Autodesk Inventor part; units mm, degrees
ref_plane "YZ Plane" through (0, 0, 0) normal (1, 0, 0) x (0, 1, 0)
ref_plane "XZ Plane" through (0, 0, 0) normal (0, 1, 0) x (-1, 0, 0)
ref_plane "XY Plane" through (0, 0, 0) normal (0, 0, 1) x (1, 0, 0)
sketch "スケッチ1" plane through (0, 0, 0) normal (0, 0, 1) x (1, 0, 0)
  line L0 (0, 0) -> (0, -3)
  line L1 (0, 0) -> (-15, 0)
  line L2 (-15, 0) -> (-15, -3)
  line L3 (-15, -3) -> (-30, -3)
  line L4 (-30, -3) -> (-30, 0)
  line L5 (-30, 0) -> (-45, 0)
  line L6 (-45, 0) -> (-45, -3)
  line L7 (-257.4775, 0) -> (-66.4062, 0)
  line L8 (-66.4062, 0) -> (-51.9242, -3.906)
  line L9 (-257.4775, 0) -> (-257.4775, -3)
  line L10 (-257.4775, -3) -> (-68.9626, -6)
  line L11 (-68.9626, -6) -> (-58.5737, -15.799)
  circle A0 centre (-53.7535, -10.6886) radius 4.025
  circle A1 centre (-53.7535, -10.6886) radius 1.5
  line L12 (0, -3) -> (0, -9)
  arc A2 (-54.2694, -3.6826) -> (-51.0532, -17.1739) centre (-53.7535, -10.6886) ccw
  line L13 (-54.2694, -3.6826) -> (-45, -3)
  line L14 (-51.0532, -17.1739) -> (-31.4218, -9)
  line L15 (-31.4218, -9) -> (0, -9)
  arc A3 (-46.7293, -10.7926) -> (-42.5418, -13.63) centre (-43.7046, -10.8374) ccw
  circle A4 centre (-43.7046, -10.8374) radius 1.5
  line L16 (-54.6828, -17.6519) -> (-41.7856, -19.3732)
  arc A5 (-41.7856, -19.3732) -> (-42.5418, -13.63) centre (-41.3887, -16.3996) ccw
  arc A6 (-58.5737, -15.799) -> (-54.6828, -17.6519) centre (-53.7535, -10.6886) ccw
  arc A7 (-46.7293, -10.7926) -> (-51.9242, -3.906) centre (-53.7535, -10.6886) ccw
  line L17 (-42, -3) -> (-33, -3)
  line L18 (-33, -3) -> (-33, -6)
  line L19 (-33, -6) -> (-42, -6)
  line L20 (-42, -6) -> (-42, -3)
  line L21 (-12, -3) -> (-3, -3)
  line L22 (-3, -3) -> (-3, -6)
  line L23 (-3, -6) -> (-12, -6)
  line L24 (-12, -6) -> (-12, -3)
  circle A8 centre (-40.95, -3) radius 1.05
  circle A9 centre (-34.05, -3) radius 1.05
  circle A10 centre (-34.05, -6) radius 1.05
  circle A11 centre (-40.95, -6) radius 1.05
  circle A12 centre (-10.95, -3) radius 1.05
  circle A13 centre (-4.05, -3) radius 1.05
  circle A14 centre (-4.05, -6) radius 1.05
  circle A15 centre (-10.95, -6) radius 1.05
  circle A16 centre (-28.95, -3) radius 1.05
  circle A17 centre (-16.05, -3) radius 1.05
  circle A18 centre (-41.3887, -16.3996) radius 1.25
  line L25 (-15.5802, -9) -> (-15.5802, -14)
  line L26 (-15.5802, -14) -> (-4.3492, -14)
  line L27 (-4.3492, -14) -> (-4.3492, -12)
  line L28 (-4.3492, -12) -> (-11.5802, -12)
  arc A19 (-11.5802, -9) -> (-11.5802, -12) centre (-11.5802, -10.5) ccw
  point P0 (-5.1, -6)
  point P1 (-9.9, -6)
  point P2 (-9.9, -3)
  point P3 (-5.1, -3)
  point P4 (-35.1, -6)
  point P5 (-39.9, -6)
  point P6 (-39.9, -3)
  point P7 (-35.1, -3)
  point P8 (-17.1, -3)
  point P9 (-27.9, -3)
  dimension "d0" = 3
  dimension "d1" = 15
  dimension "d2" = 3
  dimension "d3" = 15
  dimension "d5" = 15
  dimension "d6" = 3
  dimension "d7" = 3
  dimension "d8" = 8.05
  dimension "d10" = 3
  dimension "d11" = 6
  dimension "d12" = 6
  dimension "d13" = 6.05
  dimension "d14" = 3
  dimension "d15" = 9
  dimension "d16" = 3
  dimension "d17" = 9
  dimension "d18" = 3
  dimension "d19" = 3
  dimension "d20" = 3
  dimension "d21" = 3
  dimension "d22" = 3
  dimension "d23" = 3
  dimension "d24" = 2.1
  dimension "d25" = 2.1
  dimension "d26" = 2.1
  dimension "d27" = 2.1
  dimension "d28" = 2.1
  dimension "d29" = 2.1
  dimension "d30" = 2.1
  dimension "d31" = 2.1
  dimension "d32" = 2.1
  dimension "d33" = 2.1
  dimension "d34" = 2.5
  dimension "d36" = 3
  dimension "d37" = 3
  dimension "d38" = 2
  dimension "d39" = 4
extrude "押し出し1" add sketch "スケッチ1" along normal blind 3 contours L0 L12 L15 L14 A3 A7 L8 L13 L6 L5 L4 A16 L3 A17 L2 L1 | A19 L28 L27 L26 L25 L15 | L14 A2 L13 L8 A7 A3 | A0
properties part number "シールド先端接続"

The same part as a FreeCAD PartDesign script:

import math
import FreeCAD as App
import Part
import Sketcher

V = App.Vector
Q = App.Units.Quantity

doc = App.newDocument("Part")
body = doc.addObject("PartDesign::Body", "Body")

# Sketch on XY plane
sketch1 = body.newObject("Sketcher::SketchObject", "Sketch")
sketch1.AttachmentSupport = (doc.getObject("XY_Plane"), [""])
sketch1.MapMode = "FlatFace"
sketch1.addGeometry([
    Part.LineSegment(V(0, 0, 0), V(-15, 0, 0)),  # 0
    Part.LineSegment(V(-15, 0, 0), V(-15, -3, 0)),  # 1
    Part.ArcOfCircle(Part.Circle(V(-16.05, -3, 0), V(0, 0, 1), 1.05), math.radians(180), math.radians(360)),  # 2
    Part.LineSegment(V(-17.1, -3, 0), V(-27.9, -3, 0)),  # 3
    Part.ArcOfCircle(Part.Circle(V(-28.95, -3, 0), V(0, 0, 1), 1.05), math.radians(180), math.radians(360)),  # 4
    Part.LineSegment(V(-30, -3, 0), V(-30, 0, 0)),  # 5
    Part.LineSegment(V(-30, 0, 0), V(-45, 0, 0)),  # 6
    Part.LineSegment(V(-45, 0, 0), V(-45, -3, 0)),  # 7
    Part.LineSegment(V(-45, -3, 0), V(-54.2694, -3.6826, 0)),  # 8
    Part.ArcOfCircle(Part.Circle(V(-53.7535, -10.6886, 0), V(0, 0, 1), 7.024992), math.radians(94.211481), math.radians(292.605498)),  # 9
    Part.LineSegment(V(-51.0532, -17.1739, 0), V(-31.4218, -9, 0)),  # 10
    Part.LineSegment(V(-31.4218, -9, 0), V(-15.5802, -9, 0)),  # 11
    Part.LineSegment(V(-15.5802, -9, 0), V(-15.5802, -14, 0)),  # 12
    Part.LineSegment(V(-15.5802, -14, 0), V(-4.3492, -14, 0)),  # 13
    Part.LineSegment(V(-4.3492, -14, 0), V(-4.3492, -12, 0)),  # 14
    Part.LineSegment(V(-4.3492, -12, 0), V(-11.5802, -12, 0)),  # 15
    Part.ArcOfCircle(Part.Circle(V(-11.5802, -10.5, 0), V(0, 0, 1), 1.5), math.radians(90), math.radians(270)),  # 16
    Part.LineSegment(V(-11.5802, -9, 0), V(0, -9, 0)),  # 17
    Part.LineSegment(V(0, -9, 0), V(0, 0, 0)),  # 18
    Part.Circle(V(-43.7046, -10.8374, 0), V(0, 0, 1), 1.5),  # 19
    Part.LineSegment(V(-42, -6, 0), V(-42, -3, 0)),  # 20
    Part.ArcOfCircle(Part.Circle(V(-40.95, -3, 0), V(0, 0, 1), 1.05), math.radians(0), math.radians(180)),  # 21
    Part.LineSegment(V(-39.9, -3, 0), V(-35.1, -3, 0)),  # 22
    Part.ArcOfCircle(Part.Circle(V(-34.05, -3, 0), V(0, 0, 1), 1.05), math.radians(0), math.radians(180)),  # 23
    Part.LineSegment(V(-33, -3, 0), V(-33, -6, 0)),  # 24
    Part.ArcOfCircle(Part.Circle(V(-34.05, -6, 0), V(0, 0, 1), 1.05), math.radians(180), math.radians(360)),  # 25
    Part.LineSegment(V(-35.1, -6, 0), V(-39.9, -6, 0)),  # 26
    Part.ArcOfCircle(Part.Circle(V(-40.95, -6, 0), V(0, 0, 1), 1.05), math.radians(180), math.radians(360)),  # 27
    Part.LineSegment(V(-12, -6, 0), V(-12, -3, 0)),  # 28
    Part.ArcOfCircle(Part.Circle(V(-10.95, -3, 0), V(0, 0, 1), 1.05), math.radians(0), math.radians(180)),  # 29
    Part.LineSegment(V(-9.9, -3, 0), V(-5.1, -3, 0)),  # 30
    Part.ArcOfCircle(Part.Circle(V(-4.05, -3, 0), V(0, 0, 1), 1.05), math.radians(0), math.radians(180)),  # 31
    Part.LineSegment(V(-3, -3, 0), V(-3, -6, 0)),  # 32
    Part.ArcOfCircle(Part.Circle(V(-4.05, -6, 0), V(0, 0, 1), 1.05), math.radians(180), math.radians(360)),  # 33
    Part.LineSegment(V(-5.1, -6, 0), V(-9.9, -6, 0)),  # 34
    Part.ArcOfCircle(Part.Circle(V(-10.95, -6, 0), V(0, 0, 1), 1.05), math.radians(180), math.radians(360)),  # 35
    Part.Circle(V(-53.7535, -10.6886, 0), V(0, 0, 1), 1.5),  # 36
], False)
sketch1.addConstraint([
    Sketcher.Constraint("Coincident", 0, 2, 1, 1),
    Sketcher.Constraint("Tangent", 1, 2, 2, 2),
    Sketcher.Constraint("Coincident", 2, 1, 3, 1),
    Sketcher.Constraint("Coincident", 3, 2, 4, 2),
    Sketcher.Constraint("Tangent", 4, 1, 5, 1),
    Sketcher.Constraint("Coincident", 5, 2, 6, 1),
    Sketcher.Constraint("Coincident", 6, 2, 7, 1),
    Sketcher.Constraint("Coincident", 7, 2, 8, 1),
    Sketcher.Constraint("Tangent", 8, 2, 9, 1),
    Sketcher.Constraint("Tangent", 9, 2, 10, 1),
    Sketcher.Constraint("Coincident", 10, 2, 11, 1),
    Sketcher.Constraint("Coincident", 11, 2, 12, 1),
    Sketcher.Constraint("Coincident", 12, 2, 13, 1),
    Sketcher.Constraint("Coincident", 13, 2, 14, 1),
    Sketcher.Constraint("Coincident", 14, 2, 15, 1),
    Sketcher.Constraint("Tangent", 15, 2, 16, 2),
    Sketcher.Constraint("Tangent", 16, 1, 17, 1),
    Sketcher.Constraint("Coincident", 17, 2, 18, 1),
    Sketcher.Constraint("Coincident", 18, 2, 0, 1),
    Sketcher.Constraint("Tangent", 20, 2, 21, 2),
    Sketcher.Constraint("Coincident", 21, 1, 22, 1),
    Sketcher.Constraint("Coincident", 22, 2, 23, 2),
    Sketcher.Constraint("Tangent", 23, 1, 24, 1),
    Sketcher.Constraint("Tangent", 24, 2, 25, 2),
    Sketcher.Constraint("Coincident", 25, 1, 26, 1),
    Sketcher.Constraint("Coincident", 26, 2, 27, 2),
    Sketcher.Constraint("Tangent", 27, 1, 20, 1),
    Sketcher.Constraint("Tangent", 28, 2, 29, 2),
    Sketcher.Constraint("Coincident", 29, 1, 30, 1),
    Sketcher.Constraint("Coincident", 30, 2, 31, 2),
    Sketcher.Constraint("Tangent", 31, 1, 32, 1),
    Sketcher.Constraint("Tangent", 32, 2, 33, 2),
    Sketcher.Constraint("Coincident", 33, 1, 34, 1),
    Sketcher.Constraint("Coincident", 34, 2, 35, 2),
    Sketcher.Constraint("Tangent", 35, 1, 28, 1),
    Sketcher.Constraint("Horizontal", 0),
    Sketcher.Constraint("Vertical", 1),
    Sketcher.Constraint("Horizontal", 3),
    Sketcher.Constraint("Vertical", 5),
    Sketcher.Constraint("Horizontal", 6),
    Sketcher.Constraint("Vertical", 7),
    Sketcher.Constraint("Horizontal", 11),
    Sketcher.Constraint("Vertical", 12),
    Sketcher.Constraint("Horizontal", 13),
    Sketcher.Constraint("Vertical", 14),
    Sketcher.Constraint("Horizontal", 15),
    Sketcher.Constraint("Horizontal", 17),
    Sketcher.Constraint("Vertical", 18),
    Sketcher.Constraint("Vertical", 20),
    Sketcher.Constraint("Horizontal", 22),
    Sketcher.Constraint("Vertical", 24),
    Sketcher.Constraint("Horizontal", 26),
    Sketcher.Constraint("Vertical", 28),
    Sketcher.Constraint("Horizontal", 30),
    Sketcher.Constraint("Vertical", 32),
    Sketcher.Constraint("Horizontal", 34),
    Sketcher.Constraint("Coincident", 18, 2, -1, 1),
    Sketcher.Constraint("Coincident", 36, 3, 9, 3),
    Sketcher.Constraint("Equal", 2, 4),
    Sketcher.Constraint("Equal", 16, 19),
    Sketcher.Constraint("Equal", 4, 21),
    Sketcher.Constraint("Equal", 21, 23),
    Sketcher.Constraint("Equal", 23, 25),
    Sketcher.Constraint("Equal", 25, 27),
    Sketcher.Constraint("Equal", 27, 29),
    Sketcher.Constraint("Equal", 29, 31),
    Sketcher.Constraint("Equal", 31, 33),
    Sketcher.Constraint("Equal", 33, 35),
    Sketcher.Constraint("Equal", 19, 36),
    Sketcher.Constraint("PointOnObject", 5, 2, -1),
    Sketcher.Constraint("Horizontal", 2, 3, 4, 3),
    Sketcher.Constraint("Horizontal", 4, 3, 21, 3),
    Sketcher.Constraint("Horizontal", 21, 3, 23, 3),
    Sketcher.Constraint("Horizontal", 25, 3, 27, 3),
    Sketcher.Constraint("Horizontal", 23, 3, 29, 3),
    Sketcher.Constraint("Horizontal", 29, 3, 31, 3),
    Sketcher.Constraint("Horizontal", 27, 3, 33, 3),
    Sketcher.Constraint("Horizontal", 33, 3, 35, 3),
    Sketcher.Constraint("Horizontal", 1, 2, 2, 1),
    Sketcher.Constraint("Horizontal", 4, 1, 7, 2),
    Sketcher.Constraint("Horizontal", 11, 2, 16, 1),
    Sketcher.Constraint("Horizontal", 20, 2, 21, 1),
    Sketcher.Constraint("Horizontal", 24, 2, 25, 1),
    Sketcher.Constraint("Horizontal", 28, 2, 29, 1),
    Sketcher.Constraint("Horizontal", 32, 2, 33, 1),
    Sketcher.Constraint("Equal", 0, 6),
    Sketcher.Constraint("Equal", 26, 30),
    Sketcher.Constraint("Equal", 7, 20),
    Sketcher.Constraint("Diameter", 19, Q("3 mm")),
    Sketcher.Constraint("DistanceX", 0, 2, 0, 1, Q("15 mm")),
    Sketcher.Constraint("DistanceY", 1, 2, 1, 1, Q("3 mm")),
    Sketcher.Constraint("DistanceY", 14, 1, 14, 2, Q("2 mm")),
    Sketcher.Constraint("DistanceY", 18, 1, 18, 2, Q("9 mm")),
    Sketcher.Constraint("Radius", 2, Q("1.05 mm")),
    Sketcher.Constraint("DistanceX", 31, 1, -1, 1, Q("3 mm")),
    Sketcher.Constraint("DistanceX", 11, 2, 16, 3, Q("4 mm")),
    Sketcher.Constraint("DistanceX", 7, 2, 20, 2, Q("3 mm")),
    Sketcher.Constraint("DistanceX", 23, 1, 4, 1, Q("3 mm")),
    Sketcher.Constraint("DistanceX", 3, 2, 3, 1, Q("10.8 mm")),
    Sketcher.Constraint("Radius", 9, Q("7.025 mm")),
    Sketcher.Constraint("DistanceX", 13, 1, 13, 2, Q("11.231 mm")),
    Sketcher.Constraint("Distance", 10, Q("21.265 mm")),
    Sketcher.Constraint("DistanceX", 11, 1, 11, 2, Q("15.8416 mm")),
    Sketcher.Constraint("DistanceX", 17, 1, 17, 2, Q("11.5802 mm")),
    Sketcher.Constraint("DistanceY", 9, 2, -1, 1, Q("17.174 mm")),
    Sketcher.Constraint("DistanceX", 9, 3, 19, 3, Q("10.049 mm")),
    Sketcher.Constraint("DistanceY", 19, 3, -1, 1, Q("10.8374 mm")),
])
pad1 = body.newObject("PartDesign::Pad", "Pad")
pad1.Profile = sketch1
pad1.Length = 3

doc.recompute()
